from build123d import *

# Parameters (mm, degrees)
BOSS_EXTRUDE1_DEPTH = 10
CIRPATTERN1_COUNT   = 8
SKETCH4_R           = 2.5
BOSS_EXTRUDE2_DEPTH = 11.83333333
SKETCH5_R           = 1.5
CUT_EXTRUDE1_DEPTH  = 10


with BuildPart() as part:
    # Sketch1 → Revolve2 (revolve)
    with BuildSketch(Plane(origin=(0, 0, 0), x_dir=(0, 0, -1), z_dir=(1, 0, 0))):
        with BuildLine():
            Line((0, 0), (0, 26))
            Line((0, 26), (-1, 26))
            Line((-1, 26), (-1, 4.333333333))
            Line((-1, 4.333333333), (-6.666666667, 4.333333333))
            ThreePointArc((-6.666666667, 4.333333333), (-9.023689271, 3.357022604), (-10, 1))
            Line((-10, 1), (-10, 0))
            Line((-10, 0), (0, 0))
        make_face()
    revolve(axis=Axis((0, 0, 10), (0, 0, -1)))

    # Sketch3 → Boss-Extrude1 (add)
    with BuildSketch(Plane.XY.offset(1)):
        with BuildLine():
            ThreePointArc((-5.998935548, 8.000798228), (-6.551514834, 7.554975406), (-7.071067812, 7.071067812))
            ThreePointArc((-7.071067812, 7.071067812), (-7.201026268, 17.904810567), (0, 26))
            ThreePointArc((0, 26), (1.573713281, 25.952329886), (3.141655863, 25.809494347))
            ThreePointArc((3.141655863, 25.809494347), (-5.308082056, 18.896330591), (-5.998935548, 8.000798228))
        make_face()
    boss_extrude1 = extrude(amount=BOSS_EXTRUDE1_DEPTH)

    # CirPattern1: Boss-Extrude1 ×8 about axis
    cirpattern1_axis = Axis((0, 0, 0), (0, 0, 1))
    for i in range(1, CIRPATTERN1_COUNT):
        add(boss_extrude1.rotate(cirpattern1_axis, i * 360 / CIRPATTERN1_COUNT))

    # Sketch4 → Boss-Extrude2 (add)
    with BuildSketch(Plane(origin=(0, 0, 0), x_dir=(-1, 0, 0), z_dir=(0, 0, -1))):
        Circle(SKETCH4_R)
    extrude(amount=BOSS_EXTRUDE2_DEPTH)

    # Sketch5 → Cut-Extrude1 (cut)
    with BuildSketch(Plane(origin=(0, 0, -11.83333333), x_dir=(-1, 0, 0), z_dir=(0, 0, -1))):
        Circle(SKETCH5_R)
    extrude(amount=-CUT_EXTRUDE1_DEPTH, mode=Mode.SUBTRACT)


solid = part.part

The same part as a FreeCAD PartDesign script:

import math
import FreeCAD as App
import Part
import Sketcher
from FreeCAD import Vector

doc = App.newDocument("Part")
body = doc.addObject("PartDesign::Body", "Body")

# Sketch on YZ plane
sketch1 = body.newObject("Sketcher::SketchObject", "Sketch")
sketch1.AttachmentSupport = (doc.getObject("YZ_Plane"), [""])
sketch1.MapMode = "FlatFace"
sketch1.addGeometry([
    Part.LineSegment(Vector(0, 0, 0), Vector(26, 0, 0)),  # 0
    Part.LineSegment(Vector(26, 0, 0), Vector(26, 1, 0)),  # 1
    Part.LineSegment(Vector(26, 1, 0), Vector(4.3, 1, 0)),  # 2
    Part.LineSegment(Vector(4.3, 1, 0), Vector(4.3, 6.7, 0)),  # 3
    Part.ArcOfCircle(Part.Circle(Vector(1, 6.7, 0), Vector(0, 0, 1), 3.3), math.radians(0), math.radians(90)),  # 4
    Part.LineSegment(Vector(1, 10, 0), Vector(0, 10, 0)),  # 5
    Part.LineSegment(Vector(0, 10, 0), Vector(0, 0, 0)),  # 6
], False)
sketch1.addConstraint([
    Sketcher.Constraint("Coincident", 0, 2, 1, 1),
    Sketcher.Constraint("Coincident", 1, 2, 2, 1),
    Sketcher.Constraint("Coincident", 2, 2, 3, 1),
    Sketcher.Constraint("Tangent", 3, 2, 4, 1),
    Sketcher.Constraint("Tangent", 4, 2, 5, 1),
    Sketcher.Constraint("Coincident", 5, 2, 6, 1),
    Sketcher.Constraint("Coincident", 6, 2, 0, 1),
    Sketcher.Constraint("Horizontal", 0),
    Sketcher.Constraint("Vertical", 1),
    Sketcher.Constraint("Horizontal", 2),
    Sketcher.Constraint("Vertical", 3),
    Sketcher.Constraint("Horizontal", 5),
    Sketcher.Constraint("Vertical", 6),
    Sketcher.Constraint("Coincident", 6, 2, -1, 1),
    Sketcher.Constraint("Equal", 5, 1),
    Sketcher.Constraint("DistanceX", 0, 1, 0, 2, 26.0),
    Sketcher.Constraint("DistanceX", 5, 2, 5, 1, 1.0),
    Sketcher.Constraint("DistanceY", 6, 2, 6, 1, 10.0),
    Sketcher.Constraint("Radius", 4, 3.333333),
])
revolution = body.newObject("PartDesign::Revolution", "Revolution")
revolution.Profile = sketch1
revolution.ReferenceAxis = (sketch1, ["V_Axis"])
revolution.Angle = 360

# Sketch on XY plane
sketch2 = body.newObject("Sketcher::SketchObject", "Sketch001")
sketch2.AttachmentSupport = (doc.getObject("XY_Plane"), [""])
sketch2.MapMode = "FlatFace"
sketch2.AttachmentOffset = App.Placement(Vector(0, 0, 1), App.Rotation())
sketch2.addGeometry([
    Part.ArcOfCircle(Part.Circle(Vector(0, 0, 0), Vector(0, 0, 1), 10), math.radians(126.86), math.radians(135)),
    Part.ArcOfCircle(Part.Circle(Vector(6.9, 12.7, 0), Vector(0, 0, 1), 13.7), math.radians(106), math.radians(200)),
    Part.ArcOfCircle(Part.Circle(Vector(0, 0, 0), Vector(0, 0, 1), 26), math.radians(83.06), math.radians(90)),
    Part.ArcOfCircle(Part.Circle(Vector(6.9, 12.7, 0), Vector(0, 0, 1), 15), math.radians(117), math.radians(202)),
], False)
sketch2.addConstraint([
    Sketcher.Constraint("Coincident", 0, 1, 1, 2),
    Sketcher.Constraint("Coincident", 1, 1, 2, 1),
    Sketcher.Constraint("Coincident", 2, 2, 3, 1),
    Sketcher.Constraint("Coincident", 3, 2, 0, 2),
    Sketcher.Constraint("Coincident", 0, 3, -1, 1),
    Sketcher.Constraint("Coincident", 2, 3, -1, 1),
    Sketcher.Constraint("Coincident", 3, 3, 1, 3),
    Sketcher.Constraint("PointOnObject", 2, 2, -2),
    Sketcher.Constraint("Radius", 0, 10.0),
    Sketcher.Constraint("Radius", 2, 26.0),
    Sketcher.Constraint("Radius", 3, 15.0),
    Sketcher.Constraint("Radius", 1, 13.666667),
    Sketcher.Constraint("DistanceY", -1, 1, 0, 1, 8.000798),
])
pad1 = body.newObject("PartDesign::Pad", "Pad")
pad1.Profile = sketch2
pad1.Length = 10
doc.recompute()

polarpattern = body.newObject("PartDesign::PolarPattern", "PolarPattern")
polarpattern.Originals = [pad1]
polarpattern.Axis = (doc.getObject("Z_Axis"), [""])
polarpattern.Angle = 360
polarpattern.Occurrences = 8
body.Tip = polarpattern

# Sketch on XY plane
sketch3 = body.newObject("Sketcher::SketchObject", "Sketch002")
sketch3.AttachmentSupport = (doc.getObject("XY_Plane"), [""])
sketch3.MapMode = "FlatFace"
sketch3.addGeometry(Part.Circle(Vector(0, 0, 0), Vector(0, 0, 1), 2.5), False)
sketch3.addConstraint([
    Sketcher.Constraint("Coincident", 0, 3, -1, 1),
    Sketcher.Constraint("Diameter", 0, 5.0),
])
pad2 = body.newObject("PartDesign::Pad", "Pad001")
pad2.Profile = sketch3
pad2.Length = 11.833333
pad2.Reversed = True

# Sketch on XY plane
sketch4 = body.newObject("Sketcher::SketchObject", "Sketch003")
sketch4.AttachmentSupport = (doc.getObject("XY_Plane"), [""])
sketch4.MapMode = "FlatFace"
sketch4.AttachmentOffset = App.Placement(Vector(0, 0, -11.833333), App.Rotation())
sketch4.addGeometry(Part.Circle(Vector(0, 0, 0), Vector(0, 0, 1), 1.5), False)
sketch4.addConstraint([
    Sketcher.Constraint("Coincident", 0, 3, -1, 1),
    Sketcher.Constraint("Diameter", 0, 3.0),
])
pocket1 = body.newObject("PartDesign::Pocket", "Pocket")
pocket1.Profile = sketch4
pocket1.Length = 10
pocket1.Reversed = True

doc.recompute()
